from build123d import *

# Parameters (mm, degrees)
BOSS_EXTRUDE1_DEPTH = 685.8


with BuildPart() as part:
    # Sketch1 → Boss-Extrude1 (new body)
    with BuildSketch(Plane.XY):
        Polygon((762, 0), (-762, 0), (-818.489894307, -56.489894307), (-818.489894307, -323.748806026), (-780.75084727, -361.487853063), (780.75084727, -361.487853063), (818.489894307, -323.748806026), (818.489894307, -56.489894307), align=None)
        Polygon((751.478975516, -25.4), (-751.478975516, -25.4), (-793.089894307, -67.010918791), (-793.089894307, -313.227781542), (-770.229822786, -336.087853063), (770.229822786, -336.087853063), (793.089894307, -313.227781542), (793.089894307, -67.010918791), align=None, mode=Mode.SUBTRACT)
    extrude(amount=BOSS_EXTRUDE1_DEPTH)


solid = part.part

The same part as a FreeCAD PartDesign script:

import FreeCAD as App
import Part
import Sketcher
from FreeCAD import Vector
Q = App.Units.Quantity

doc = App.newDocument("Part")
body = doc.addObject("PartDesign::Body", "Body")

# Sketch on XY plane
sketch1 = doc.addObject("Sketcher::SketchObject", "Sketch")
body.addObject(sketch1)
sketch1.AttachmentSupport = (doc.XY_Plane, [""])
sketch1.MapMode = "FlatFace"
sketch1.addGeometry([
    Part.LineSegment(Vector(762, 0, 0), Vector(-762, 0, 0)),  # 0
    Part.LineSegment(Vector(-762, 0, 0), Vector(-818, -56, 0)),  # 1
    Part.LineSegment(Vector(-818, -56, 0), Vector(-818, -324, 0)),  # 2
    Part.LineSegment(Vector(-818, -324, 0), Vector(-781, -361, 0)),  # 3
    Part.LineSegment(Vector(-781, -361, 0), Vector(781, -361, 0)),  # 4
    Part.LineSegment(Vector(781, -361, 0), Vector(818, -324, 0)),  # 5
    Part.LineSegment(Vector(818, -324, 0), Vector(818, -56, 0)),  # 6
    Part.LineSegment(Vector(818, -56, 0), Vector(762, 0, 0)),  # 7
    Part.LineSegment(Vector(-751, -25, 0), Vector(751, -25, 0)),  # 8
    Part.LineSegment(Vector(751, -25, 0), Vector(793, -67, 0)),  # 9
    Part.LineSegment(Vector(793, -67, 0), Vector(793, -313, 0)),  # 10
    Part.LineSegment(Vector(793, -313, 0), Vector(770, -336, 0)),  # 11
    Part.LineSegment(Vector(770, -336, 0), Vector(-770, -336, 0)),  # 12
    Part.LineSegment(Vector(-770, -336, 0), Vector(-793, -313, 0)),  # 13
    Part.LineSegment(Vector(-793, -313, 0), Vector(-793, -67, 0)),  # 14
    Part.LineSegment(Vector(-793, -67, 0), Vector(-751, -25, 0)),  # 15
], False)
sketch1.addConstraint([
    Sketcher.Constraint("Coincident", 0, 2, 1, 1),
    Sketcher.Constraint("Coincident", 1, 2, 2, 1),
    Sketcher.Constraint("Coincident", 2, 2, 3, 1),
    Sketcher.Constraint("Coincident", 3, 2, 4, 1),
    Sketcher.Constraint("Coincident", 4, 2, 5, 1),
    Sketcher.Constraint("Coincident", 5, 2, 6, 1),
    Sketcher.Constraint("Coincident", 6, 2, 7, 1),
    Sketcher.Constraint("Coincident", 7, 2, 0, 1),
    Sketcher.Constraint("Coincident", 8, 2, 9, 1),
    Sketcher.Constraint("Coincident", 9, 2, 10, 1),
    Sketcher.Constraint("Coincident", 10, 2, 11, 1),
    Sketcher.Constraint("Coincident", 11, 2, 12, 1),
    Sketcher.Constraint("Coincident", 12, 2, 13, 1),
    Sketcher.Constraint("Coincident", 13, 2, 14, 1),
    Sketcher.Constraint("Coincident", 14, 2, 15, 1),
    Sketcher.Constraint("Coincident", 15, 2, 8, 1),
    Sketcher.Constraint("Horizontal", 0),
    Sketcher.Constraint("Vertical", 2),
    Sketcher.Constraint("Horizontal", 4),
    Sketcher.Constraint("Vertical", 6),
    Sketcher.Constraint("Horizontal", 8),
    Sketcher.Constraint("Vertical", 10),
    Sketcher.Constraint("Horizontal", 12),
    Sketcher.Constraint("Vertical", 14),
    Sketcher.Constraint("Symmetric", 0, 2, 7, 2, -1, 1),
    Sketcher.Constraint("Symmetric", 2, 2, 5, 2, -2),
    Sketcher.Constraint("Symmetric", 10, 2, 13, 2, -2),
    Sketcher.Constraint("Perpendicular", 1, 3),
    Sketcher.Constraint("Perpendicular", 3, 5),
    Sketcher.Constraint("Perpendicular", 5, 7),
    Sketcher.Constraint("Parallel", 7, 9),
    Sketcher.Constraint("Perpendicular", 9, 11),
    Sketcher.Constraint("Perpendicular", 11, 13),
    Sketcher.Constraint("Perpendicular", 13, 15),
    Sketcher.Constraint("Horizontal", 1, 2, 6, 2),
    Sketcher.Constraint("Horizontal", 9, 2, 14, 2),
    Sketcher.Constraint("DistanceX", 0, 2, 0, 1, Q("60 in")),
    Sketcher.Constraint("DistanceY", 8, 2, -1, 1, Q("1 in")),
    Sketcher.Constraint("DistanceX", 9, 2, 6, 2, Q("1 in")),
    Sketcher.Constraint("DistanceY", 4, 2, 11, 2, Q("1 in")),
    Sketcher.Constraint("DistanceX", 8, 1, 8, 2, Q("1502.957951 mm")),
    Sketcher.Constraint("DistanceY", 2, 2, 2, 1, Q("267.258912 mm")),
    Sketcher.Constraint("DistanceX", 4, 1, 4, 2, Q("1561.501695 mm")),
    Sketcher.Constraint("DistanceX", 12, 2, 12, 1, Q("1540.459646 mm")),
    Sketcher.Constraint("DistanceY", 9, 2, -1, 1, Q("67.010919 mm")),
])
pad1 = doc.addObject("PartDesign::Pad", "Pad")
body.addObject(pad1)
pad1.Profile = sketch1
pad1.Length = Q("27 in")

doc.recompute()
